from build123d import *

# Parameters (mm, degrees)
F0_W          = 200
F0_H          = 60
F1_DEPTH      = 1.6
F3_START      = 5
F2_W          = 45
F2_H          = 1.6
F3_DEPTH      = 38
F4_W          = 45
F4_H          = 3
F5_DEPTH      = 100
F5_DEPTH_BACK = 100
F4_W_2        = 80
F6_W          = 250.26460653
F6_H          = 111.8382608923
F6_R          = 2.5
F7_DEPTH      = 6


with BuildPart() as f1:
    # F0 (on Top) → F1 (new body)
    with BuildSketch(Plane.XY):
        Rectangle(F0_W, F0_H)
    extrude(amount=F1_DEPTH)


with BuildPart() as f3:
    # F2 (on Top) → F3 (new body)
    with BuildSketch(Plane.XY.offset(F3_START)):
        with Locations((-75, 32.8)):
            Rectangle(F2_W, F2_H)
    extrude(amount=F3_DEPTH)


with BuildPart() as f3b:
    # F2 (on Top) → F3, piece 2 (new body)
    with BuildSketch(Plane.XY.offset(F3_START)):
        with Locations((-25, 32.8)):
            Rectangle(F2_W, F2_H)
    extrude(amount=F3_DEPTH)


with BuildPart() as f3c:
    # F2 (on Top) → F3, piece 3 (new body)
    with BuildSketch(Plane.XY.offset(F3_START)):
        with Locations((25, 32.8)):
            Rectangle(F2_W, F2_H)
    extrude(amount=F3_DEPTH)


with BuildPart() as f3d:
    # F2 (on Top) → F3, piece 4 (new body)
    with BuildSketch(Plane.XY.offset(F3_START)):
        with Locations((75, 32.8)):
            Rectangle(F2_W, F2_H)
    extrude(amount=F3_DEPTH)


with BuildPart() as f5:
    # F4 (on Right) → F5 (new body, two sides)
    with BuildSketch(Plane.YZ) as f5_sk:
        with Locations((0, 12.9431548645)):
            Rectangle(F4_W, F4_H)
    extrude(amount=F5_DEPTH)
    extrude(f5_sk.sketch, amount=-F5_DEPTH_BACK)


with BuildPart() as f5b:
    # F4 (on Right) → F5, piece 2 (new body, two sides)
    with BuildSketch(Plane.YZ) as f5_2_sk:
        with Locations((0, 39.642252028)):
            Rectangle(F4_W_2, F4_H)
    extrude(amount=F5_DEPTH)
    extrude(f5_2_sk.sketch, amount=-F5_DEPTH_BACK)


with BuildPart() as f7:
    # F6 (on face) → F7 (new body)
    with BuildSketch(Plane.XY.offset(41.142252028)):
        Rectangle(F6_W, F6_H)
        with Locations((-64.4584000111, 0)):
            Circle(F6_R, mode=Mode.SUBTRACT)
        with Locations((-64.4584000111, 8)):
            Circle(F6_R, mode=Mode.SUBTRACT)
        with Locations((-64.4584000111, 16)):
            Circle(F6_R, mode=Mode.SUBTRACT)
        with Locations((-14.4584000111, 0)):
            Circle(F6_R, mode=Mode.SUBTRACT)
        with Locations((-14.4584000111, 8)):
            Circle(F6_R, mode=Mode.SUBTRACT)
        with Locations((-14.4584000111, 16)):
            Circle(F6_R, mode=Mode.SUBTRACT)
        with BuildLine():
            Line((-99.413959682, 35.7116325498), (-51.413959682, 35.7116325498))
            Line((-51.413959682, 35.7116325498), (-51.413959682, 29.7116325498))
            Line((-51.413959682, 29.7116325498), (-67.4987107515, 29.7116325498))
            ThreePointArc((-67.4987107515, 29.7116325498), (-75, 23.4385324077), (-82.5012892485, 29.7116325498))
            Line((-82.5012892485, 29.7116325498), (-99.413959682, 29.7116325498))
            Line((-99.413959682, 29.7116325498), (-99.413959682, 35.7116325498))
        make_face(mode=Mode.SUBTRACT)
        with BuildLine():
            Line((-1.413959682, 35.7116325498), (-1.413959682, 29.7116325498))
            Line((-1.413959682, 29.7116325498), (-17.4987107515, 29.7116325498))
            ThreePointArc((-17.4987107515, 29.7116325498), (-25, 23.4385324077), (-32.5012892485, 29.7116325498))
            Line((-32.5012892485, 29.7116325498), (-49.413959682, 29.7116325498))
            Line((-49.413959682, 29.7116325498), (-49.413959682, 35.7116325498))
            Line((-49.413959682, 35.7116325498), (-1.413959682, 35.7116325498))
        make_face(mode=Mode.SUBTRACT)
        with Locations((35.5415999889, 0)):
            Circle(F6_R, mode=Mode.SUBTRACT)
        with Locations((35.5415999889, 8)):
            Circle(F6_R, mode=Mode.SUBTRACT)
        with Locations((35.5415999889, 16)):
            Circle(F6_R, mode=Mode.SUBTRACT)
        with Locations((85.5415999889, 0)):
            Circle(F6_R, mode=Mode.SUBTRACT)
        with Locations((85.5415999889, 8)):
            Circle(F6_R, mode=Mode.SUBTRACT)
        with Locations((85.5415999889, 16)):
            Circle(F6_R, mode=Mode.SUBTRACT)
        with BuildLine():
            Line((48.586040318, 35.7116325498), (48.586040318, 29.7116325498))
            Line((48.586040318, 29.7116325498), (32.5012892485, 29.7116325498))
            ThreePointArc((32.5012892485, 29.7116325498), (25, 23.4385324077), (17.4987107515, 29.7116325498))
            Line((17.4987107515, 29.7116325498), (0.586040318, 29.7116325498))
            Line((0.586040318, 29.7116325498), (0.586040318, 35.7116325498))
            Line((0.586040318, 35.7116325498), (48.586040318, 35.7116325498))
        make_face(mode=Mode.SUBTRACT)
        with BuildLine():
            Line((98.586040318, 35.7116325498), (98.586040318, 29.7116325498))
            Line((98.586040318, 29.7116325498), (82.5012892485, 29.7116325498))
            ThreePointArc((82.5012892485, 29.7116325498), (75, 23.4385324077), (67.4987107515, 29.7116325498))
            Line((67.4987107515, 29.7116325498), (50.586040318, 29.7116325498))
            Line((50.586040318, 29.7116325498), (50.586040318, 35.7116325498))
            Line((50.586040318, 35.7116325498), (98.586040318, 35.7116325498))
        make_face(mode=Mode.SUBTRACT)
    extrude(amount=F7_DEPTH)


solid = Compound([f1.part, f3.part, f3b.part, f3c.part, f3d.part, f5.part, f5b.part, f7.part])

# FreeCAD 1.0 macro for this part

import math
import FreeCAD as App
import Part
import Sketcher

V = App.Vector
Q = App.Units.Quantity


def add_polygon(sketch, points):
    """Adds a closed chain of lines whose ends are joined by coincident constraints."""
    first, n = sketch.GeometryCount, len(points)
    for a, b in zip(points, points[1:] + points[:1]):
        sketch.addGeometry(Part.LineSegment(App.Vector(*a, 0), App.Vector(*b, 0)), False)
    for i in range(n):
        sketch.addConstraint(Sketcher.Constraint("Coincident", first + i, 2, first + (i + 1) % n, 1))

doc = App.newDocument("Part")
body = doc.addObject("PartDesign::Body", "Body")

sketch1 = body.newObject("Sketcher::SketchObject", "Sketch")
sketch1.AttachmentSupport = (doc.getObject("XY_Plane"), [""])
sketch1.MapMode = "FlatFace"
add_polygon(sketch1, [(-100, 30), (-100, -30), (100, -30), (100, 30)])
sketch1.addConstraint([
    Sketcher.Constraint("Vertical", 0),
    Sketcher.Constraint("Horizontal", 1),
    Sketcher.Constraint("Vertical", 2),
    Sketcher.Constraint("Horizontal", 3),
    Sketcher.Constraint("Symmetric", 0, 2, 2, 2, -1, 1),
    Sketcher.Constraint("DistanceX", 1, 1, 1, 2, Q("200 mm")),
    Sketcher.Constraint("DistanceY", 0, 2, 0, 1, Q("60 mm")),
])
pad1 = body.newObject("PartDesign::Pad", "Pad")
pad1.Profile = sketch1
pad1.Length = 1.6
body2 = doc.addObject("PartDesign::Body", "Body001")

sketch2 = body2.newObject("Sketcher::SketchObject", "Sketch001")
sketch2.AttachmentSupport = (doc.getObject("XY_Plane001"), [""])
sketch2.MapMode = "FlatFace"
sketch2.AttachmentOffset = App.Placement(V(0, 0, 5), App.Rotation())
add_polygon(sketch2, [(-97.5, 33.6), (-97.5, 32), (-52.5, 32), (-52.5, 33.6)])
sketch2.addConstraint([
    Sketcher.Constraint("Vertical", 0),
    Sketcher.Constraint("Horizontal", 1),
    Sketcher.Constraint("Vertical", 2),
    Sketcher.Constraint("Horizontal", 3),
    Sketcher.Constraint("DistanceX", 1, 1, 1, 2, Q("45 mm")),
    Sketcher.Constraint("DistanceY", 0, 2, 0, 1, Q("1.6 mm")),
    Sketcher.Constraint("DistanceY", -1, 1, 0, 2, Q("32 mm")),
    Sketcher.Constraint("DistanceX", 0, 2, -1, 1, Q("97.5 mm")),
])
pad2 = body2.newObject("PartDesign::Pad", "Pad001")
pad2.Profile = sketch2
pad2.Length = 38
body3 = doc.addObject("PartDesign::Body", "Body002")

sketch3 = body3.newObject("Sketcher::SketchObject", "Sketch002")
sketch3.AttachmentSupport = (doc.getObject("XY_Plane002"), [""])
sketch3.MapMode = "FlatFace"
sketch3.AttachmentOffset = App.Placement(V(0, 0, 5), App.Rotation())
add_polygon(sketch3, [(-47.5, 33.6), (-47.5, 32), (-2.5, 32), (-2.5, 33.6)])
sketch3.addConstraint([
    Sketcher.Constraint("Vertical", 0),
    Sketcher.Constraint("Horizontal", 1),
    Sketcher.Constraint("Vertical", 2),
    Sketcher.Constraint("Horizontal", 3),
    Sketcher.Constraint("DistanceX", 1, 1, 1, 2, Q("45 mm")),
    Sketcher.Constraint("DistanceY", 0, 2, 0, 1, Q("1.6 mm")),
    Sketcher.Constraint("DistanceY", -1, 1, 0, 2, Q("32 mm")),
    Sketcher.Constraint("DistanceX", 0, 2, -1, 1, Q("47.5 mm")),
])
pad3 = body3.newObject("PartDesign::Pad", "Pad002")
pad3.Profile = sketch3
pad3.Length = 38
body4 = doc.addObject("PartDesign::Body", "Body003")

sketch4 = body4.newObject("Sketcher::SketchObject", "Sketch003")
sketch4.AttachmentSupport = (doc.getObject("XY_Plane003"), [""])
sketch4.MapMode = "FlatFace"
sketch4.AttachmentOffset = App.Placement(V(0, 0, 5), App.Rotation())
add_polygon(sketch4, [(2.5, 33.6), (2.5, 32), (47.5, 32), (47.5, 33.6)])
sketch4.addConstraint([
    Sketcher.Constraint("Vertical", 0),
    Sketcher.Constraint("Horizontal", 1),
    Sketcher.Constraint("Vertical", 2),
    Sketcher.Constraint("Horizontal", 3),
    Sketcher.Constraint("DistanceX", 1, 1, 1, 2, Q("45 mm")),
    Sketcher.Constraint("DistanceY", 0, 2, 0, 1, Q("1.6 mm")),
    Sketcher.Constraint("DistanceY", -1, 1, 0, 2, Q("32 mm")),
    Sketcher.Constraint("DistanceX", -1, 1, 0, 2, Q("2.5 mm")),
])
pad4 = body4.newObject("PartDesign::Pad", "Pad003")
pad4.Profile = sketch4
pad4.Length = 38
body5 = doc.addObject("PartDesign::Body", "Body004")

sketch5 = body5.newObject("Sketcher::SketchObject", "Sketch004")
sketch5.AttachmentSupport = (doc.getObject("XY_Plane004"), [""])
sketch5.MapMode = "FlatFace"
sketch5.AttachmentOffset = App.Placement(V(0, 0, 5), App.Rotation())
add_polygon(sketch5, [(52.5, 33.6), (52.5, 32), (97.5, 32), (97.5, 33.6)])
sketch5.addConstraint([
    Sketcher.Constraint("Vertical", 0),
    Sketcher.Constraint("Horizontal", 1),
    Sketcher.Constraint("Vertical", 2),
    Sketcher.Constraint("Horizontal", 3),
    Sketcher.Constraint("DistanceX", 1, 1, 1, 2, Q("45 mm")),
    Sketcher.Constraint("DistanceY", 0, 2, 0, 1, Q("1.6 mm")),
    Sketcher.Constraint("DistanceY", -1, 1, 0, 2, Q("32 mm")),
    Sketcher.Constraint("DistanceX", -1, 1, 0, 2, Q("52.5 mm")),
])
pad5 = body5.newObject("PartDesign::Pad", "Pad004")
pad5.Profile = sketch5
pad5.Length = 38
body6 = doc.addObject("PartDesign::Body", "Body005")

sketch6 = body6.newObject("Sketcher::SketchObject", "Sketch005")
sketch6.AttachmentSupport = (doc.getObject("YZ_Plane005"), [""])
sketch6.MapMode = "FlatFace"
add_polygon(sketch6, [(-22.5, 14.4), (-22.5, 11.4), (22.5, 11.4), (22.5, 14.4)])
sketch6.addConstraint([
    Sketcher.Constraint("Vertical", 0),
    Sketcher.Constraint("Horizontal", 1),
    Sketcher.Constraint("Vertical", 2),
    Sketcher.Constraint("Horizontal", 3),
    Sketcher.Constraint("DistanceX", 1, 1, 1, 2, Q("45 mm")),
    Sketcher.Constraint("DistanceY", 0, 2, 0, 1, Q("3 mm")),
    Sketcher.Constraint("DistanceX", 0, 2, -1, 1, Q("22.5 mm")),
    Sketcher.Constraint("DistanceY", -1, 1, 0, 2, Q("11.443155 mm")),
])
pad6 = body6.newObject("PartDesign::Pad", "Pad005")
pad6.Profile = sketch6
pad6.Type = "TwoLengths"
pad6.Length = 100
pad6.Length2 = 100
body7 = doc.addObject("PartDesign::Body", "Body006")

sketch7 = body7.newObject("Sketcher::SketchObject", "Sketch006")
sketch7.AttachmentSupport = (doc.getObject("YZ_Plane006"), [""])
sketch7.MapMode = "FlatFace"
add_polygon(sketch7, [(-40, 41.1), (-40, 38.1), (40, 38.1), (40, 41.1)])
sketch7.addConstraint([
    Sketcher.Constraint("Vertical", 0),
    Sketcher.Constraint("Horizontal", 1),
    Sketcher.Constraint("Vertical", 2),
    Sketcher.Constraint("Horizontal", 3),
    Sketcher.Constraint("DistanceX", 1, 1, 1, 2, Q("80 mm")),
    Sketcher.Constraint("DistanceY", 0, 2, 0, 1, Q("3 mm")),
    Sketcher.Constraint("DistanceX", 0, 2, -1, 1, Q("40 mm")),
    Sketcher.Constraint("DistanceY", -1, 1, 0, 2, Q("38.142252 mm")),
])
pad7 = body7.newObject("PartDesign::Pad", "Pad006")
pad7.Profile = sketch7
pad7.Type = "TwoLengths"
pad7.Length = 100
pad7.Length2 = 100
body8 = doc.addObject("PartDesign::Body", "Body007")

sketch8 = body8.newObject("Sketcher::SketchObject", "Sketch007")
sketch8.AttachmentSupport = (doc.getObject("XY_Plane007"), [""])
sketch8.MapMode = "FlatFace"
sketch8.AttachmentOffset = App.Placement(V(0, 0, 41.142252), App.Rotation())
add_polygon(sketch8, [(-125.1, 55.9), (-125.1, -55.9), (125.1, -55.9), (125.1, 55.9)])
sketch8.addGeometry(Part.Circle(V(-64.5, 0, 0), V(0, 0, 1), 2.5), False)
sketch8.addGeometry(Part.Circle(V(-14.5, 0, 0), V(0, 0, 1), 2.5), False)
sketch8.addGeometry(Part.Circle(V(-64.5, 8, 0), V(0, 0, 1), 2.5), False)
sketch8.addGeometry(Part.Circle(V(-64.5, 16, 0), V(0, 0, 1), 2.5), False)
sketch8.addGeometry(Part.Circle(V(-14.5, 8, 0), V(0, 0, 1), 2.5), False)
sketch8.addGeometry(Part.Circle(V(-14.5, 16, 0), V(0, 0, 1), 2.5), False)
sketch8.addGeometry(Part.Circle(V(35.5, 0, 0), V(0, 0, 1), 2.5), False)
sketch8.addGeometry(Part.Circle(V(85.5, 0, 0), V(0, 0, 1), 2.5), False)
sketch8.addGeometry(Part.Circle(V(35.5, 8, 0), V(0, 0, 1), 2.5), False)
sketch8.addGeometry(Part.Circle(V(35.5, 16, 0), V(0, 0, 1), 2.5), False)
sketch8.addGeometry(Part.Circle(V(85.5, 8, 0), V(0, 0, 1), 2.5), False)
sketch8.addGeometry(Part.Circle(V(85.5, 16, 0), V(0, 0, 1), 2.5), False)
sketch8.addGeometry(Part.LineSegment(V(-99.4, 29.7, 0), V(-99.4, 35.7, 0)), False)
sketch8.addGeometry(Part.LineSegment(V(-99.4, 35.7, 0), V(-51.4, 35.7, 0)), False)
sketch8.addGeometry(Part.LineSegment(V(-51.4, 35.7, 0), V(-51.4, 29.7, 0)), False)
sketch8.addGeometry(Part.LineSegment(V(-51.4, 29.7, 0), V(-67.5, 29.7, 0)), False)
sketch8.addGeometry(Part.ArcOfCircle(Part.Circle(V(-75, 31.1, 0), V(0, 0, 1), 7.6), math.radians(-170), math.radians(-10)), False)
sketch8.addGeometry(Part.LineSegment(V(-82.5, 29.7, 0), V(-99.4, 29.7, 0)), False)
sketch8.addGeometry(Part.LineSegment(V(-49.4, 35.7, 0), V(-1.4, 35.7, 0)), False)
sketch8.addGeometry(Part.LineSegment(V(-1.4, 35.7, 0), V(-1.4, 29.7, 0)), False)
sketch8.addGeometry(Part.LineSegment(V(-1.4, 29.7, 0), V(-17.5, 29.7, 0)), False)
sketch8.addGeometry(Part.ArcOfCircle(Part.Circle(V(-25, 31.1, 0), V(0, 0, 1), 7.6), math.radians(-170), math.radians(-10)), False)
sketch8.addGeometry(Part.LineSegment(V(-32.5, 29.7, 0), V(-49.4, 29.7, 0)), False)
sketch8.addGeometry(Part.LineSegment(V(-49.4, 29.7, 0), V(-49.4, 35.7, 0)), False)
sketch8.addGeometry(Part.LineSegment(V(0.6, 35.7, 0), V(48.6, 35.7, 0)), False)
sketch8.addGeometry(Part.LineSegment(V(48.6, 35.7, 0), V(48.6, 29.7, 0)), False)
sketch8.addGeometry(Part.LineSegment(V(48.6, 29.7, 0), V(32.5, 29.7, 0)), False)
sketch8.addGeometry(Part.ArcOfCircle(Part.Circle(V(25, 31.1, 0), V(0, 0, 1), 7.6), math.radians(-170), math.radians(-10)), False)
sketch8.addGeometry(Part.LineSegment(V(17.5, 29.7, 0), V(0.6, 29.7, 0)), False)
sketch8.addGeometry(Part.LineSegment(V(0.6, 29.7, 0), V(0.6, 35.7, 0)), False)
sketch8.addGeometry(Part.LineSegment(V(50.6, 35.7, 0), V(98.6, 35.7, 0)), False)
sketch8.addGeometry(Part.LineSegment(V(98.6, 35.7, 0), V(98.6, 29.7, 0)), False)
sketch8.addGeometry(Part.LineSegment(V(98.6, 29.7, 0), V(82.5, 29.7, 0)), False)
sketch8.addGeometry(Part.ArcOfCircle(Part.Circle(V(75, 31.1, 0), V(0, 0, 1), 7.6), math.radians(-170), math.radians(-10)), False)
sketch8.addGeometry(Part.LineSegment(V(67.5, 29.7, 0), V(50.6, 29.7, 0)), False)
sketch8.addGeometry(Part.LineSegment(V(50.6, 29.7, 0), V(50.6, 35.7, 0)), False)
sketch8.addConstraint([
    Sketcher.Constraint("Coincident", 16, 2, 17, 1),
    Sketcher.Constraint("Coincident", 17, 2, 18, 1),
    Sketcher.Constraint("Coincident", 18, 2, 19, 1),
    Sketcher.Constraint("Coincident", 19, 2, 20, 2),
    Sketcher.Constraint("Coincident", 20, 1, 21, 1),
    Sketcher.Constraint("Coincident", 21, 2, 16, 1),
    Sketcher.Constraint("Coincident", 22, 2, 23, 1),
    Sketcher.Constraint("Coincident", 23, 2, 24, 1),
    Sketcher.Constraint("Coincident", 24, 2, 25, 2),
    Sketcher.Constraint("Coincident", 25, 1, 26, 1),
    Sketcher.Constraint("Coincident", 26, 2, 27, 1),
    Sketcher.Constraint("Coincident", 27, 2, 22, 1),
    Sketcher.Constraint("Coincident", 28, 2, 29, 1),
    Sketcher.Constraint("Coincident", 29, 2, 30, 1),
    Sketcher.Constraint("Coincident", 30, 2, 31, 2),
    Sketcher.Constraint("Coincident", 31, 1, 32, 1),
    Sketcher.Constraint("Coincident", 32, 2, 33, 1),
    Sketcher.Constraint("Coincident", 33, 2, 28, 1),
    Sketcher.Constraint("Coincident", 34, 2, 35, 1),
    Sketcher.Constraint("Coincident", 35, 2, 36, 1),
    Sketcher.Constraint("Coincident", 36, 2, 37, 2),
    Sketcher.Constraint("Coincident", 37, 1, 38, 1),
    Sketcher.Constraint("Coincident", 38, 2, 39, 1),
    Sketcher.Constraint("Coincident", 39, 2, 34, 1),
    Sketcher.Constraint("Vertical", 0),
    Sketcher.Constraint("Horizontal", 1),
    Sketcher.Constraint("Vertical", 2),
    Sketcher.Constraint("Horizontal", 3),
    Sketcher.Constraint("Vertical", 16),
    Sketcher.Constraint("Horizontal", 17),
    Sketcher.Constraint("Vertical", 18),
    Sketcher.Constraint("Horizontal", 19),
    Sketcher.Constraint("Horizontal", 21),
    Sketcher.Constraint("Horizontal", 22),
    Sketcher.Constraint("Vertical", 23),
    Sketcher.Constraint("Horizontal", 24),
    Sketcher.Constraint("Horizontal", 26),
    Sketcher.Constraint("Vertical", 27),
    Sketcher.Constraint("Horizontal", 28),
    Sketcher.Constraint("Vertical", 29),
    Sketcher.Constraint("Horizontal", 30),
    Sketcher.Constraint("Horizontal", 32),
    Sketcher.Constraint("Vertical", 33),
    Sketcher.Constraint("Horizontal", 34),
    Sketcher.Constraint("Vertical", 35),
    Sketcher.Constraint("Horizontal", 36),
    Sketcher.Constraint("Horizontal", 38),
    Sketcher.Constraint("Vertical", 39),
    Sketcher.Constraint("Equal", 4, 5),
    Sketcher.Constraint("Equal", 5, 6),
    Sketcher.Constraint("Equal", 6, 7),
    Sketcher.Constraint("Equal", 7, 8),
    Sketcher.Constraint("Equal", 8, 9),
    Sketcher.Constraint("Equal", 9, 10),
    Sketcher.Constraint("Equal", 10, 11),
    Sketcher.Constraint("Equal", 11, 12),
    Sketcher.Constraint("Equal", 12, 13),
    Sketcher.Constraint("Equal", 13, 14),
    Sketcher.Constraint("Equal", 14, 15),
    Sketcher.Constraint("Equal", 20, 25),
    Sketcher.Constraint("Equal", 25, 31),
    Sketcher.Constraint("Equal", 31, 37),
    Sketcher.Constraint("Symmetric", 0, 2, 2, 2, -1, 1),
    Sketcher.Constraint("Symmetric", 25, 3, 31, 3, -2),
    Sketcher.Constraint("Symmetric", 20, 3, 37, 3, -2),
    Sketcher.Constraint("PointOnObject", 4, 3, -1),
    Sketcher.Constraint("PointOnObject", 5, 3, -1),
    Sketcher.Constraint("PointOnObject", 10, 3, -1),
    Sketcher.Constraint("PointOnObject", 11, 3, -1),
    Sketcher.Constraint("Horizontal", 6, 3, 8, 3),
    Sketcher.Constraint("Horizontal", 7, 3, 9, 3),
    Sketcher.Constraint("Horizontal", 8, 3, 12, 3),
    Sketcher.Constraint("Horizontal", 9, 3, 13, 3),
    Sketcher.Constraint("Horizontal", 12, 3, 14, 3),
    Sketcher.Constraint("Horizontal", 13, 3, 15, 3),
    Sketcher.Constraint("Horizontal", 20, 3, 25, 3),
    Sketcher.Constraint("Horizontal", 19, 2, 20, 1),
    Sketcher.Constraint("Horizontal", 17, 2, 22, 2),
    Sketcher.Constraint("Horizontal", 21, 2, 23, 2),
    Sketcher.Constraint("Horizontal", 24, 2, 25, 1),
    Sketcher.Constraint("Horizontal", 27, 2, 28, 2),
    Sketcher.Constraint("Horizontal", 26, 2, 29, 2),
    Sketcher.Constraint("Horizontal", 30, 2, 31, 1),
    Sketcher.Constraint("Horizontal", 33, 2, 34, 2),
    Sketcher.Constraint("Horizontal", 32, 2, 35, 2),
    Sketcher.Constraint("Horizontal", 36, 2, 37, 1),
    Sketcher.Constraint("Vertical", 4, 3, 6, 3),
    Sketcher.Constraint("Vertical", 6, 3, 7, 3),
    Sketcher.Constraint("Vertical", 5, 3, 8, 3),
    Sketcher.Constraint("Vertical", 8, 3, 9, 3),
    Sketcher.Constraint("Vertical", 10, 3, 12, 3),
    Sketcher.Constraint("Vertical", 12, 3, 13, 3),
    Sketcher.Constraint("Vertical", 11, 3, 14, 3),
    Sketcher.Constraint("Vertical", 14, 3, 15, 3),
    Sketcher.Constraint("Equal", 17, 22),
    Sketcher.Constraint("Equal", 19, 24),
    Sketcher.Constraint("Equal", 22, 28),
    Sketcher.Constraint("Equal", 24, 30),
    Sketcher.Constraint("Equal", 28, 34),
    Sketcher.Constraint("Equal", 30, 36),
    Sketcher.Constraint("Diameter", 4, Q("5 mm")),
    Sketcher.Constraint("DistanceX", 17, 1, 17, 2, Q("48 mm")),
    Sketcher.Constraint("DistanceY", 16, 1, 16, 2, Q("6 mm")),
    Sketcher.Constraint("DistanceY", -1, 1, 6, 3, Q("8 mm")),
    Sketcher.Constraint("DistanceY", -1, 1, 7, 3, Q("16 mm")),
    Sketcher.Constraint("DistanceX", 20, 3, -1, 1, Q("75 mm")),
    Sketcher.Constraint("DistanceX", 25, 3, -1, 1, Q("25 mm")),
    Sketcher.Constraint("DistanceX", 4, 3, 5, 3, Q("50 mm")),
    Sketcher.Constraint("DistanceX", 5, 3, 10, 3, Q("50 mm")),
    Sketcher.Constraint("DistanceX", 10, 3, 11, 3, Q("50 mm")),
    Sketcher.Constraint("Radius", 20, Q("7.621521 mm")),
    Sketcher.Constraint("DistanceX", 19, 2, 19, 1, Q("16.084751 mm")),
    Sketcher.Constraint("DistanceX", 21, 2, 21, 1, Q("16.91267 mm")),
    Sketcher.Constraint("DistanceY", 0, 2, 0, 1, Q("111.838261 mm")),
    Sketcher.Constraint("DistanceX", 4, 3, -1, 1, Q("64.4584 mm")),
    Sketcher.Constraint("DistanceX", 1, 1, 1, 2, Q("250.264607 mm")),
    Sketcher.Constraint("DistanceY", -1, 1, 20, 3, Q("31.060053 mm")),
])
pad8 = body8.newObject("PartDesign::Pad", "Pad007")
pad8.Profile = sketch8
pad8.Length = 6

doc.recompute()
